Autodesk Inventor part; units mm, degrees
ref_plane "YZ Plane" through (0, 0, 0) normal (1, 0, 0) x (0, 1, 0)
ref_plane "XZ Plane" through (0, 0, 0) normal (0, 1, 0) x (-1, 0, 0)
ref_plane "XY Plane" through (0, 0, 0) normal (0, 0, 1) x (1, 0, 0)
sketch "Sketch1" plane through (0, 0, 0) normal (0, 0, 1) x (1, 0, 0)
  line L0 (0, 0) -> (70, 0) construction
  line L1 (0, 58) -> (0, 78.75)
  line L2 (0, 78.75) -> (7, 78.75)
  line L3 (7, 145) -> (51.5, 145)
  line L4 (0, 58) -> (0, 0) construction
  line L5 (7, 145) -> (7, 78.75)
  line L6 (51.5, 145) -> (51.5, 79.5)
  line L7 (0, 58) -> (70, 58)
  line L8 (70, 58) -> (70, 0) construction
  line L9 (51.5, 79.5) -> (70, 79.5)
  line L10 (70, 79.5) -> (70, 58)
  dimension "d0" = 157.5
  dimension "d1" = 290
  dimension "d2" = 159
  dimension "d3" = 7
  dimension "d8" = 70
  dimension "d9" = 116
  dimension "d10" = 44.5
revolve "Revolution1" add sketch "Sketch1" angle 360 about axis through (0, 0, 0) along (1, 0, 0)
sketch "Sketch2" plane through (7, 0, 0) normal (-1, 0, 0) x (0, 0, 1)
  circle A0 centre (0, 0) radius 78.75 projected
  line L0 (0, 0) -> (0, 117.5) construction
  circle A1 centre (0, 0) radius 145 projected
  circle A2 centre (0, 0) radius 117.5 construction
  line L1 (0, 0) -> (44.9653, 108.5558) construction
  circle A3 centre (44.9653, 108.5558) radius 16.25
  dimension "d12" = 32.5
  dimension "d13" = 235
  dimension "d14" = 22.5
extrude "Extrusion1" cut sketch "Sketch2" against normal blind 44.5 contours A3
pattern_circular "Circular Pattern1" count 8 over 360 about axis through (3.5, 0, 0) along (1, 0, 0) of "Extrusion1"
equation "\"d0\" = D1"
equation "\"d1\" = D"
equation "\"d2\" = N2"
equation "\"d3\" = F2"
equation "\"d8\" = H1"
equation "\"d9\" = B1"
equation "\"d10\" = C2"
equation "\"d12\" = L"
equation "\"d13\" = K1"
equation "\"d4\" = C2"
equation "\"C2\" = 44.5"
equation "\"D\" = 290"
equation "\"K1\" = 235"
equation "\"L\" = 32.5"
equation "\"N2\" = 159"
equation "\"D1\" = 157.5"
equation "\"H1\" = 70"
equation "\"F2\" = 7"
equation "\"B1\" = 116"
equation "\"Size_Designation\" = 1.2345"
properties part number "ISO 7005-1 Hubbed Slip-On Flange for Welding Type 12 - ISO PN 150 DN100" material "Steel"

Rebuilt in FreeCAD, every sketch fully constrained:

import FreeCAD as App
import Part
import Sketcher

V = App.Vector
Q = App.Units.Quantity

doc = App.newDocument("Part")
body = doc.addObject("PartDesign::Body", "Body")

# Sketch on XY plane
sketch1 = body.newObject("Sketcher::SketchObject", "Sketch")
sketch1.AttachmentSupport = (doc.getObject("XY_Plane"), [""])
sketch1.MapMode = "FlatFace"
sketch1.addGeometry([
    Part.LineSegment(V(0, 79, 0), V(0, 58, 0)),  # 0
    Part.LineSegment(V(0, 58, 0), V(70, 58, 0)),  # 1
    Part.LineSegment(V(70, 58, 0), V(70, 80, 0)),  # 2
    Part.LineSegment(V(70, 80, 0), V(52, 80, 0)),  # 3
    Part.LineSegment(V(52, 80, 0), V(52, 145, 0)),  # 4
    Part.LineSegment(V(52, 145, 0), V(7, 145, 0)),  # 5
    Part.LineSegment(V(7, 145, 0), V(7, 79, 0)),  # 6
    Part.LineSegment(V(7, 79, 0), V(0, 79, 0)),  # 7
], False)
sketch1.addConstraint([
    Sketcher.Constraint("Coincident", 0, 2, 1, 1),
    Sketcher.Constraint("Coincident", 1, 2, 2, 1),
    Sketcher.Constraint("Coincident", 2, 2, 3, 1),
    Sketcher.Constraint("Coincident", 3, 2, 4, 1),
    Sketcher.Constraint("Coincident", 4, 2, 5, 1),
    Sketcher.Constraint("Coincident", 5, 2, 6, 1),
    Sketcher.Constraint("Coincident", 6, 2, 7, 1),
    Sketcher.Constraint("Coincident", 7, 2, 0, 1),
    Sketcher.Constraint("Vertical", 0),
    Sketcher.Constraint("Horizontal", 1),
    Sketcher.Constraint("Vertical", 2),
    Sketcher.Constraint("Horizontal", 3),
    Sketcher.Constraint("Vertical", 4),
    Sketcher.Constraint("Horizontal", 5),
    Sketcher.Constraint("Vertical", 6),
    Sketcher.Constraint("Horizontal", 7),
    Sketcher.Constraint("PointOnObject", 0, 2, -2),
    Sketcher.Constraint("DistanceX", 1, 1, 1, 2, Q("70 mm")),
    Sketcher.Constraint("DistanceX", 7, 2, 7, 1, Q("7 mm")),
    Sketcher.Constraint("DistanceX", 5, 2, 5, 1, Q("44.5 mm")),
    Sketcher.Constraint("DistanceY", 2, 1, 2, 2, Q("21.5 mm")),
    Sketcher.Constraint("DistanceY", 4, 1, 4, 2, Q("65.5 mm")),
    Sketcher.Constraint("DistanceY", -1, 1, 0, 2, Q("58 mm")),
    Sketcher.Constraint("DistanceY", 0, 2, 0, 1, Q("20.75 mm")),
])
revolution = body.newObject("PartDesign::Revolution", "Revolution")
revolution.Profile = sketch1
revolution.ReferenceAxis = (sketch1, ["H_Axis"])
revolution.Angle = 360

# Sketch on YZ plane
sketch2 = body.newObject("Sketcher::SketchObject", "Sketch001")
sketch2.AttachmentSupport = (doc.getObject("YZ_Plane"), [""])
sketch2.MapMode = "FlatFace"
sketch2.AttachmentOffset = App.Placement(V(0, 0, 7), App.Rotation())
sketch2.addGeometry(Part.Circle(V(109, 45, 0), V(0, 0, 1), 16), False)
sketch2.addConstraint([
    Sketcher.Constraint("Diameter", 0, Q("32.5 mm")),
    Sketcher.Constraint("DistanceX", -1, 1, 0, 3, Q("108.5558 mm")),
    Sketcher.Constraint("DistanceY", -1, 1, 0, 3, Q("44.9653 mm")),
])
pocket1 = body.newObject("PartDesign::Pocket", "Pocket")
pocket1.Profile = sketch2
pocket1.Length = 44.5
pocket1.Reversed = True
doc.recompute()

polarpattern = body.newObject("PartDesign::PolarPattern", "PolarPattern")
polarpattern.Originals = [pocket1]
polarpattern.Axis = (doc.getObject("X_Axis"), [""])
polarpattern.Angle = 360
polarpattern.Occurrences = 8
body.Tip = polarpattern

doc.recompute()
